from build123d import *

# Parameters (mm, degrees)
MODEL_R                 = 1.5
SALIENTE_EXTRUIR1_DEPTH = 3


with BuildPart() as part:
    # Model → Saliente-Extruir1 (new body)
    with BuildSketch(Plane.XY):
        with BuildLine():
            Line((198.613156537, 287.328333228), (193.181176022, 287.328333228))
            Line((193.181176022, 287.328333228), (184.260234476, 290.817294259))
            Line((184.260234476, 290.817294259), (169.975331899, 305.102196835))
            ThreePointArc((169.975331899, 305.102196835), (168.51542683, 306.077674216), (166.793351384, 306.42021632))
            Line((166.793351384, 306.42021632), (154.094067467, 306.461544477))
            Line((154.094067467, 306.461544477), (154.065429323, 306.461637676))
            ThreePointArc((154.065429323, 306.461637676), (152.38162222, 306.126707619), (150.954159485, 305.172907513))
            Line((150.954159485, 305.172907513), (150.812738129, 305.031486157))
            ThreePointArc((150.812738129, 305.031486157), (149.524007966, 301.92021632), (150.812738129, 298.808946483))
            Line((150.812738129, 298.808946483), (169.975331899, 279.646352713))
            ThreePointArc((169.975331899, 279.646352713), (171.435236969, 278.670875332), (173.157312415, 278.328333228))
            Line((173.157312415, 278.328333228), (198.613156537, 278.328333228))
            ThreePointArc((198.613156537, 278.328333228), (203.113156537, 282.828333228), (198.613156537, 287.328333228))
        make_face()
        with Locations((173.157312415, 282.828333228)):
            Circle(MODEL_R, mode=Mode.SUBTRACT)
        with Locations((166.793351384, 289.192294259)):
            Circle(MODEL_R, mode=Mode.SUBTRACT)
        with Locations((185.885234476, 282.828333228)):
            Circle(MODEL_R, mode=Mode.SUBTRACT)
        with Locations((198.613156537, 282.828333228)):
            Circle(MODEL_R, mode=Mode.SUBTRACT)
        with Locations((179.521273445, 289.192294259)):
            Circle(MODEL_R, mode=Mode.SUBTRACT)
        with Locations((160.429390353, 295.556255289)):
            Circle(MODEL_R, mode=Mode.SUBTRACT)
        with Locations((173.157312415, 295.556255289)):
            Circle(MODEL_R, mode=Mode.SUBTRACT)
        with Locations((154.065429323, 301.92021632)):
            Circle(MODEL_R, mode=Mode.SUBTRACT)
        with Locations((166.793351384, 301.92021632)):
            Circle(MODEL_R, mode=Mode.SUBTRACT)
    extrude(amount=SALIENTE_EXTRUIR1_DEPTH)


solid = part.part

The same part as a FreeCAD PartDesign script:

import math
import FreeCAD as App
import Part
import Sketcher

V = App.Vector
Q = App.Units.Quantity

doc = App.newDocument("Part")
body = doc.addObject("PartDesign::Body", "Body")

sketch1 = body.newObject("Sketcher::SketchObject", "Sketch")
sketch1.AttachmentSupport = (doc.getObject("XY_Plane"), [""])
sketch1.MapMode = "FlatFace"
sketch1.addGeometry(Part.LineSegment(V(198.613, 287.328, 0), V(193.181, 287.328, 0)), False)
sketch1.addGeometry(Part.LineSegment(V(193.181, 287.328, 0), V(184.26, 290.817, 0)), False)
sketch1.addGeometry(Part.LineSegment(V(184.26, 290.817, 0), V(169.975, 305.102, 0)), False)
sketch1.addGeometry(Part.ArcOfCircle(Part.Circle(V(166.793, 301.92, 0), V(0, 0, 1), 4.5), math.radians(45), math.radians(90)), False)
sketch1.addGeometry(Part.LineSegment(V(166.793, 306.42, 0), V(154.094, 306.462, 0)), False)
sketch1.addGeometry(Part.LineSegment(V(154.094, 306.462, 0), V(154.065, 306.462, 0)), False)
sketch1.addGeometry(Part.ArcOfCircle(Part.Circle(V(154.065, 302.062, 0), V(0, 0, 1), 4.4), math.radians(90), math.radians(135)), False)
sketch1.addGeometry(Part.LineSegment(V(150.954, 305.173, 0), V(150.813, 305.031, 0)), False)
sketch1.addGeometry(Part.ArcOfCircle(Part.Circle(V(153.924, 301.92, 0), V(0, 0, 1), 4.4), math.radians(135), math.radians(225)), False)
sketch1.addGeometry(Part.LineSegment(V(150.813, 298.809, 0), V(169.975, 279.646, 0)), False)
sketch1.addGeometry(Part.ArcOfCircle(Part.Circle(V(173.157, 282.828, 0), V(0, 0, 1), 4.5), math.radians(-135), math.radians(-90)), False)
sketch1.addGeometry(Part.LineSegment(V(173.157, 278.328, 0), V(198.613, 278.328, 0)), False)
sketch1.addGeometry(Part.ArcOfCircle(Part.Circle(V(198.613, 282.828, 0), V(0, 0, 1), 4.5), math.radians(-90), math.radians(90)), False)
sketch1.addGeometry(Part.Circle(V(173.157, 282.828, 0), V(0, 0, 1), 1.5), False)
sketch1.addGeometry(Part.Circle(V(166.793, 289.192, 0), V(0, 0, 1), 1.5), False)
sketch1.addGeometry(Part.Circle(V(185.885, 282.828, 0), V(0, 0, 1), 1.5), False)
sketch1.addGeometry(Part.Circle(V(198.613, 282.828, 0), V(0, 0, 1), 1.5), False)
sketch1.addGeometry(Part.Circle(V(179.521, 289.192, 0), V(0, 0, 1), 1.5), False)
sketch1.addGeometry(Part.Circle(V(160.429, 295.556, 0), V(0, 0, 1), 1.5), False)
sketch1.addGeometry(Part.Circle(V(173.157, 295.556, 0), V(0, 0, 1), 1.5), False)
sketch1.addGeometry(Part.Circle(V(154.065, 301.92, 0), V(0, 0, 1), 1.5), False)
sketch1.addGeometry(Part.Circle(V(166.793, 301.92, 0), V(0, 0, 1), 1.5), False)
sketch1.addConstraint(Sketcher.Constraint("Coincident", 0, 2, 1, 1))
sketch1.addConstraint(Sketcher.Constraint("Coincident", 1, 2, 2, 1))
sketch1.addConstraint(Sketcher.Constraint("Tangent", 2, 2, 3, 1))
sketch1.addConstraint(Sketcher.Constraint("Coincident", 3, 2, 4, 1))
sketch1.addConstraint(Sketcher.Constraint("Coincident", 4, 2, 5, 1))
sketch1.addConstraint(Sketcher.Constraint("Coincident", 5, 2, 6, 1))
sketch1.addConstraint(Sketcher.Constraint("Tangent", 6, 2, 7, 1))
sketch1.addConstraint(Sketcher.Constraint("Tangent", 7, 2, 8, 1))
sketch1.addConstraint(Sketcher.Constraint("Tangent", 8, 2, 9, 1))
sketch1.addConstraint(Sketcher.Constraint("Tangent", 9, 2, 10, 1))
sketch1.addConstraint(Sketcher.Constraint("Tangent", 10, 2, 11, 1))
sketch1.addConstraint(Sketcher.Constraint("Tangent", 11, 2, 12, 1))
sketch1.addConstraint(Sketcher.Constraint("Tangent", 12, 2, 0, 1))
sketch1.addConstraint(Sketcher.Constraint("Horizontal", 0))
sketch1.addConstraint(Sketcher.Constraint("Horizontal", 11))
sketch1.addConstraint(Sketcher.Constraint("Coincident", 13, 3, 10, 3))
sketch1.addConstraint(Sketcher.Constraint("Coincident", 16, 3, 12, 3))
sketch1.addConstraint(Sketcher.Constraint("Coincident", 21, 3, 3, 3))
sketch1.addConstraint(Sketcher.Constraint("Equal", 6, 8))
sketch1.addConstraint(Sketcher.Constraint("Equal", 3, 10))
sketch1.addConstraint(Sketcher.Constraint("Equal", 10, 12))
sketch1.addConstraint(Sketcher.Constraint("Equal", 13, 14))
sketch1.addConstraint(Sketcher.Constraint("Equal", 14, 15))
sketch1.addConstraint(Sketcher.Constraint("Equal", 15, 16))
sketch1.addConstraint(Sketcher.Constraint("Equal", 16, 17))
sketch1.addConstraint(Sketcher.Constraint("Equal", 17, 18))
sketch1.addConstraint(Sketcher.Constraint("Equal", 18, 19))
sketch1.addConstraint(Sketcher.Constraint("Equal", 19, 20))
sketch1.addConstraint(Sketcher.Constraint("Equal", 20, 21))
sketch1.addConstraint(Sketcher.Constraint("Parallel", 4, 5))
sketch1.addConstraint(Sketcher.Constraint("Perpendicular", 2, 7))
sketch1.addConstraint(Sketcher.Constraint("Perpendicular", 7, 9))
sketch1.addConstraint(Sketcher.Constraint("Horizontal", 3, 3, 8, 3))
sketch1.addConstraint(Sketcher.Constraint("Horizontal", 13, 3, 15, 3))
sketch1.addConstraint(Sketcher.Constraint("Horizontal", 14, 3, 17, 3))
sketch1.addConstraint(Sketcher.Constraint("Horizontal", 18, 3, 19, 3))
sketch1.addConstraint(Sketcher.Constraint("Horizontal", 8, 3, 20, 3))
sketch1.addConstraint(Sketcher.Constraint("Vertical", 3, 3, 14, 3))
sketch1.addConstraint(Sketcher.Constraint("Vertical", 13, 3, 19, 3))
sketch1.addConstraint(Sketcher.Constraint("Vertical", 6, 3, 20, 3))
sketch1.addConstraint(Sketcher.Constraint("Vertical", 21, 3, 3, 2))
sketch1.addConstraint(Sketcher.Constraint("Vertical", 20, 3, 5, 2))
sketch1.addConstraint(Sketcher.Constraint("Vertical", 7, 2, 8, 2))
sketch1.addConstraint(Sketcher.Constraint("Vertical", 2, 2, 9, 2))
sketch1.addConstraint(Sketcher.Constraint("Diameter", 13, Q("3 mm")))
sketch1.addConstraint(Sketcher.Constraint("Radius", 3, Q("4.5 mm")))
sketch1.addConstraint(Sketcher.Constraint("Radius", 6, Q("4.4 mm")))
sketch1.addConstraint(Sketcher.Constraint("Distance", 7, Q("0.2 mm")))
sketch1.addConstraint(Sketcher.Constraint("Distance", 9, Q("27.1 mm")))
sketch1.addConstraint(Sketcher.Constraint("DistanceY", 17, 3, 1, 2, Q("1.625 mm")))
sketch1.addConstraint(Sketcher.Constraint("DistanceX", 1, 2, 15, 3, Q("1.625 mm")))
sketch1.addConstraint(Sketcher.Constraint("DistanceX", 0, 2, 0, 1, Q("5.431981 mm")))
sketch1.addConstraint(Sketcher.Constraint("Distance", 4, Q("12.699351 mm")))
sketch1.addConstraint(Sketcher.Constraint("DistanceX", 11, 1, 11, 2, Q("25.455844 mm")))
sketch1.addConstraint(Sketcher.Constraint("DistanceX", -1, 1, 3, 3, Q("166.793351 mm")))
sketch1.addConstraint(Sketcher.Constraint("DistanceX", -1, 1, 18, 3, Q("160.42939 mm")))
sketch1.addConstraint(Sketcher.Constraint("DistanceY", 10, 3, 14, 3, Q("6.363961 mm")))
sketch1.addConstraint(Sketcher.Constraint("DistanceX", 10, 3, 17, 3, Q("6.363961 mm")))
sketch1.addConstraint(Sketcher.Constraint("DistanceY", 14, 3, 18, 3, Q("6.363961 mm")))
sketch1.addConstraint(Sketcher.Constraint("DistanceY", -1, 1, 3, 3, Q("301.920216 mm")))
pad1 = body.newObject("PartDesign::Pad", "Pad")
pad1.Profile = sketch1
pad1.Length = 3

doc.recompute()
